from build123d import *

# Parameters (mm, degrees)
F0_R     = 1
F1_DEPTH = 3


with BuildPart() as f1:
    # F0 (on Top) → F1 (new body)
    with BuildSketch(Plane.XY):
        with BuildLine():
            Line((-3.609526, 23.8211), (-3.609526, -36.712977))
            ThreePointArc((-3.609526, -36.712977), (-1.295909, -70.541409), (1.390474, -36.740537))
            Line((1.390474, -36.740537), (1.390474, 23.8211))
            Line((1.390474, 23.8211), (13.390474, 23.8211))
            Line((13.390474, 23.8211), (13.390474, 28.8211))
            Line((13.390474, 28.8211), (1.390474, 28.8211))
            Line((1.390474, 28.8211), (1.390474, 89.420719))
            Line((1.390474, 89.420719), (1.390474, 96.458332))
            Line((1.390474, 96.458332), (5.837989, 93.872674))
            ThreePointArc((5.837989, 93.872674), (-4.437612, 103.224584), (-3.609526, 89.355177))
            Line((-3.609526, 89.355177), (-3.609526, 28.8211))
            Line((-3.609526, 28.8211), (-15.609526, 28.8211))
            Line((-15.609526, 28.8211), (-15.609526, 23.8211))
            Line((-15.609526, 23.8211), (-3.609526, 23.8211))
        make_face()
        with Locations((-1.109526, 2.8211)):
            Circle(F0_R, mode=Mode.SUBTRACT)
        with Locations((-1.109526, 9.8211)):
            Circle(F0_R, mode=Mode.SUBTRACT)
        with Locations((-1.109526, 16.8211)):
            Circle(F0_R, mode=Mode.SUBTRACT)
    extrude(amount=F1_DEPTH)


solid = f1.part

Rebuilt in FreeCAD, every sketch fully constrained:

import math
import FreeCAD as App
import Part
import Sketcher
from FreeCAD import Vector

doc = App.newDocument("Part")
body = doc.addObject("PartDesign::Body", "Body")

# Sketch on XY plane
sketch1 = body.newObject("Sketcher::SketchObject", "Sketch")
sketch1.AttachmentSupport = (doc.getObject("XY_Plane"), [""])
sketch1.MapMode = "FlatFace"
sketch1.addGeometry(Part.LineSegment(Vector(-3.6, 23.8, 0), Vector(-3.6, -36.7, 0)), False)
sketch1.addGeometry(Part.ArcOfCircle(Part.Circle(Vector(-1.2, -53.5, 0), Vector(0, 0, 1), 17), math.radians(98), math.radians(441)), False)
sketch1.addGeometry(Part.LineSegment(Vector(1.4, -36.7, 0), Vector(1.4, 23.8, 0)), False)
sketch1.addGeometry(Part.LineSegment(Vector(1.4, 23.8, 0), Vector(13.4, 23.8, 0)), False)
sketch1.addGeometry(Part.LineSegment(Vector(13.4, 23.8, 0), Vector(13.4, 28.8, 0)), False)
sketch1.addGeometry(Part.LineSegment(Vector(13.4, 28.8, 0), Vector(1.4, 28.8, 0)), False)
sketch1.addGeometry(Part.LineSegment(Vector(1.4, 28.8, 0), Vector(1.4, 96.5, 0)), False)
sketch1.addGeometry(Part.LineSegment(Vector(1.4, 96.5, 0), Vector(5.8, 93.9, 0)), False)
sketch1.addGeometry(Part.ArcOfCircle(Part.Circle(Vector(-1.2, 96.5, 0), Vector(0, 0, 1), 7.5), math.radians(-20), math.radians(251)), False)
sketch1.addGeometry(Part.LineSegment(Vector(-3.6, 89.4, 0), Vector(-3.6, 28.8, 0)), False)
sketch1.addGeometry(Part.LineSegment(Vector(-3.6, 28.8, 0), Vector(-15.6, 28.8, 0)), False)
sketch1.addGeometry(Part.LineSegment(Vector(-15.6, 28.8, 0), Vector(-15.6, 23.8, 0)), False)
sketch1.addGeometry(Part.LineSegment(Vector(-15.6, 23.8, 0), Vector(-3.6, 23.8, 0)), False)
sketch1.addGeometry(Part.Circle(Vector(-1.1, 2.8, 0), Vector(0, 0, 1), 1), False)
sketch1.addGeometry(Part.Circle(Vector(-1.1, 9.8, 0), Vector(0, 0, 1), 1), False)
sketch1.addGeometry(Part.Circle(Vector(-1.1, 16.8, 0), Vector(0, 0, 1), 1), False)
sketch1.addConstraint(Sketcher.Constraint("Coincident", 0, 2, 1, 1))
sketch1.addConstraint(Sketcher.Constraint("Coincident", 1, 2, 2, 1))
sketch1.addConstraint(Sketcher.Constraint("Coincident", 2, 2, 3, 1))
sketch1.addConstraint(Sketcher.Constraint("Coincident", 3, 2, 4, 1))
sketch1.addConstraint(Sketcher.Constraint("Coincident", 4, 2, 5, 1))
sketch1.addConstraint(Sketcher.Constraint("Coincident", 5, 2, 6, 1))
sketch1.addConstraint(Sketcher.Constraint("Coincident", 6, 2, 7, 1))
sketch1.addConstraint(Sketcher.Constraint("Coincident", 7, 2, 8, 1))
sketch1.addConstraint(Sketcher.Constraint("Coincident", 8, 2, 9, 1))
sketch1.addConstraint(Sketcher.Constraint("Coincident", 9, 2, 10, 1))
sketch1.addConstraint(Sketcher.Constraint("Coincident", 10, 2, 11, 1))
sketch1.addConstraint(Sketcher.Constraint("Coincident", 11, 2, 12, 1))
sketch1.addConstraint(Sketcher.Constraint("Coincident", 12, 2, 0, 1))
sketch1.addConstraint(Sketcher.Constraint("Vertical", 0))
sketch1.addConstraint(Sketcher.Constraint("Vertical", 2))
sketch1.addConstraint(Sketcher.Constraint("Horizontal", 3))
sketch1.addConstraint(Sketcher.Constraint("Vertical", 4))
sketch1.addConstraint(Sketcher.Constraint("Horizontal", 5))
sketch1.addConstraint(Sketcher.Constraint("Vertical", 6))
sketch1.addConstraint(Sketcher.Constraint("Vertical", 9))
sketch1.addConstraint(Sketcher.Constraint("Horizontal", 10))
sketch1.addConstraint(Sketcher.Constraint("Vertical", 11))
sketch1.addConstraint(Sketcher.Constraint("Horizontal", 12))
sketch1.addConstraint(Sketcher.Constraint("Equal", 13, 14))
sketch1.addConstraint(Sketcher.Constraint("Equal", 14, 15))
sketch1.addConstraint(Sketcher.Constraint("Horizontal", 8, 3, 6, 2))
sketch1.addConstraint(Sketcher.Constraint("Horizontal", 5, 2, 9, 2))
sketch1.addConstraint(Sketcher.Constraint("Horizontal", 3, 2, 11, 2))
sketch1.addConstraint(Sketcher.Constraint("Vertical", 13, 3, 14, 3))
sketch1.addConstraint(Sketcher.Constraint("Vertical", 14, 3, 15, 3))
sketch1.addConstraint(Sketcher.Constraint("Vertical", 2, 2, 5, 2))
sketch1.addConstraint(Sketcher.Constraint("Vertical", 0, 2, 8, 2))
sketch1.addConstraint(Sketcher.Constraint("Equal", 5, 10))
sketch1.addConstraint(Sketcher.Constraint("Equal", 0, 9))
sketch1.addConstraint(Sketcher.Constraint("Diameter", 13, 2.0))
sketch1.addConstraint(Sketcher.Constraint("Radius", 1, 17.0))
sketch1.addConstraint(Sketcher.Constraint("Radius", 8, 7.5))
sketch1.addConstraint(Sketcher.Constraint("DistanceX", 3, 1, 3, 2, 12.0))
sketch1.addConstraint(Sketcher.Constraint("DistanceY", 4, 1, 4, 2, 5.0))
sketch1.addConstraint(Sketcher.Constraint("DistanceY", 1, 3, 8, 3, 150.0))
sketch1.addConstraint(Sketcher.Constraint("DistanceY", 13, 3, 14, 3, 7.0))
sketch1.addConstraint(Sketcher.Constraint("DistanceY", 14, 3, 15, 3, 7.0))
sketch1.addConstraint(Sketcher.Constraint("DistanceX", 0, 2, 1, 2, 5.0))
sketch1.addConstraint(Sketcher.Constraint("DistanceY", 15, 3, 2, 2, 7.0))
sketch1.addConstraint(Sketcher.Constraint("DistanceX", 0, 2, 13, 3, 2.5))
sketch1.addConstraint(Sketcher.Constraint("DistanceY", 6, 1, 6, 2, 67.637232))
sketch1.addConstraint(Sketcher.Constraint("DistanceY", -1, 1, 13, 3, 2.8211))
sketch1.addConstraint(Sketcher.Constraint("DistanceY", 0, 2, 0, 1, 60.534077))
sketch1.addConstraint(Sketcher.Constraint("DistanceX", 1, 3, -1, 1, 1.20221))
sketch1.addConstraint(Sketcher.Constraint("DistanceX", -1, 1, 7, 2, 5.837989))
pad1 = body.newObject("PartDesign::Pad", "Pad")
pad1.Profile = sketch1
pad1.Length = 3

doc.recompute()
